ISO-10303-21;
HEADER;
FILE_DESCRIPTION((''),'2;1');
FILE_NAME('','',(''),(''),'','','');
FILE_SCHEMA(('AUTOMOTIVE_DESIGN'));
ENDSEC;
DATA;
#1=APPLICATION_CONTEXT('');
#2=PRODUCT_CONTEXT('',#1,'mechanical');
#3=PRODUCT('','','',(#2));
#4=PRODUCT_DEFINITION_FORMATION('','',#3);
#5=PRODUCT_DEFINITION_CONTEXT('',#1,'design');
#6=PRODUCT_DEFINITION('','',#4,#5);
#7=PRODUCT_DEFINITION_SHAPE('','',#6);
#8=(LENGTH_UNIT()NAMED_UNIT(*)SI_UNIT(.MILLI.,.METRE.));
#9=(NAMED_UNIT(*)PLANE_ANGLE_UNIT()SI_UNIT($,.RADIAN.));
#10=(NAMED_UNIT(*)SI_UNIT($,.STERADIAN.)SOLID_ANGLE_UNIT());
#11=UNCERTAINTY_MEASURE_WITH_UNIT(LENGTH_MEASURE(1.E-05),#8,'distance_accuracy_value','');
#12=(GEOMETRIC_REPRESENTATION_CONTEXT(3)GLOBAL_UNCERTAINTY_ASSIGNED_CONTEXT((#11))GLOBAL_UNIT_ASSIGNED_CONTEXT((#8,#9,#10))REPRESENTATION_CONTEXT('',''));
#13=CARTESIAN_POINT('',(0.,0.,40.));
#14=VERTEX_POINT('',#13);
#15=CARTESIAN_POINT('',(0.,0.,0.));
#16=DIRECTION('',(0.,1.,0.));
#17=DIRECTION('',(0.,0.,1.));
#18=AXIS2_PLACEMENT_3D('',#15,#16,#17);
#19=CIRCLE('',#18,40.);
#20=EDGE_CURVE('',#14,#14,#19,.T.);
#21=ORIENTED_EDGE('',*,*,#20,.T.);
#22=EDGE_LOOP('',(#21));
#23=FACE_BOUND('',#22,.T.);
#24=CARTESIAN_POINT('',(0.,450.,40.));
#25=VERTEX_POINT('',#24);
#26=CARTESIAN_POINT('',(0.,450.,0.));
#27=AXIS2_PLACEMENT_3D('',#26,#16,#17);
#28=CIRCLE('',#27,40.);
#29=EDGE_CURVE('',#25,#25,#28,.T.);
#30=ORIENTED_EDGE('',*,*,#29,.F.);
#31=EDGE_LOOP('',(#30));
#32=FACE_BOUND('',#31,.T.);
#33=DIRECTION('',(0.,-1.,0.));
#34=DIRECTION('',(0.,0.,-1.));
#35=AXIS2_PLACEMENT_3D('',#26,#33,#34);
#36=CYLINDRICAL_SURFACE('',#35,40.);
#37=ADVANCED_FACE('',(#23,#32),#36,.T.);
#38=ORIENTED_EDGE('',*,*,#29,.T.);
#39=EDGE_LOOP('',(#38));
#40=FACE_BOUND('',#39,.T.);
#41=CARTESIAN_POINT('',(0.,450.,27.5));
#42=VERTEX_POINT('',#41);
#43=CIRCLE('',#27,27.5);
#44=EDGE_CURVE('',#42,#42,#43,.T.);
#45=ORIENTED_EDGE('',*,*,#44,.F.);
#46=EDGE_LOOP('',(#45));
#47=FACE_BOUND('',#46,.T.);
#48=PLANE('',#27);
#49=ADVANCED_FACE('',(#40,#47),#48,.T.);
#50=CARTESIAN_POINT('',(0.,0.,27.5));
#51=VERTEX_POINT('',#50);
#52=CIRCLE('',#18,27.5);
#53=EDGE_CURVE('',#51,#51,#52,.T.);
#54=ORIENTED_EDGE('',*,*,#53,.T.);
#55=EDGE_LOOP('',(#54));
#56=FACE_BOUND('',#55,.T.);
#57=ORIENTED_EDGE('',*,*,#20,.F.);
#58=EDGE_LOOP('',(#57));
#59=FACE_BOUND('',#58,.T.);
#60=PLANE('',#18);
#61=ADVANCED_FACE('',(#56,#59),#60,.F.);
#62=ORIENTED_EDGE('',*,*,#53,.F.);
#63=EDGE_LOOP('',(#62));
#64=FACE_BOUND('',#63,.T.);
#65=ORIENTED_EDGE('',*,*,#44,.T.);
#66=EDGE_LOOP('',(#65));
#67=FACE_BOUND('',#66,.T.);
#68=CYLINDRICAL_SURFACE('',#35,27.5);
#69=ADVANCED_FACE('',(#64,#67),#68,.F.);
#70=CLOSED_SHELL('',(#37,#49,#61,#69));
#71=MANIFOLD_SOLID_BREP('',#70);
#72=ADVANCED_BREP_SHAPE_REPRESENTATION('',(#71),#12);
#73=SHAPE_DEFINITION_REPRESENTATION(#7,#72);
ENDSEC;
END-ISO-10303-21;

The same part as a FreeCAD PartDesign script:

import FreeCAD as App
import Part
import Sketcher
from FreeCAD import Vector
Q = App.Units.Quantity

doc = App.newDocument("Part")
body = doc.addObject("PartDesign::Body", "Body")

sketch1 = doc.addObject("Sketcher::SketchObject", "Sketch")
body.addObject(sketch1)
sketch1.AttachmentSupport = (doc.XZ_Plane, [""])
sketch1.MapMode = "FlatFace"
sketch1.addGeometry([
    Part.Circle(Vector(0, 0, 0), Vector(0, 0, 1), 40),
    Part.Circle(Vector(0, 0, 0), Vector(0, 0, 1), 28),
], False)
sketch1.addConstraint([
    Sketcher.Constraint("Coincident", 0, 3, -1, 1),
    Sketcher.Constraint("Coincident", 1, 3, -1, 1),
    Sketcher.Constraint("Diameter", 0, Q("80 mm")),
    Sketcher.Constraint("Diameter", 1, Q("55 mm")),
])
pad1 = doc.addObject("PartDesign::Pad", "Pad")
body.addObject(pad1)
pad1.Profile = sketch1
pad1.Length = 450
pad1.Reversed = True

doc.recompute()
